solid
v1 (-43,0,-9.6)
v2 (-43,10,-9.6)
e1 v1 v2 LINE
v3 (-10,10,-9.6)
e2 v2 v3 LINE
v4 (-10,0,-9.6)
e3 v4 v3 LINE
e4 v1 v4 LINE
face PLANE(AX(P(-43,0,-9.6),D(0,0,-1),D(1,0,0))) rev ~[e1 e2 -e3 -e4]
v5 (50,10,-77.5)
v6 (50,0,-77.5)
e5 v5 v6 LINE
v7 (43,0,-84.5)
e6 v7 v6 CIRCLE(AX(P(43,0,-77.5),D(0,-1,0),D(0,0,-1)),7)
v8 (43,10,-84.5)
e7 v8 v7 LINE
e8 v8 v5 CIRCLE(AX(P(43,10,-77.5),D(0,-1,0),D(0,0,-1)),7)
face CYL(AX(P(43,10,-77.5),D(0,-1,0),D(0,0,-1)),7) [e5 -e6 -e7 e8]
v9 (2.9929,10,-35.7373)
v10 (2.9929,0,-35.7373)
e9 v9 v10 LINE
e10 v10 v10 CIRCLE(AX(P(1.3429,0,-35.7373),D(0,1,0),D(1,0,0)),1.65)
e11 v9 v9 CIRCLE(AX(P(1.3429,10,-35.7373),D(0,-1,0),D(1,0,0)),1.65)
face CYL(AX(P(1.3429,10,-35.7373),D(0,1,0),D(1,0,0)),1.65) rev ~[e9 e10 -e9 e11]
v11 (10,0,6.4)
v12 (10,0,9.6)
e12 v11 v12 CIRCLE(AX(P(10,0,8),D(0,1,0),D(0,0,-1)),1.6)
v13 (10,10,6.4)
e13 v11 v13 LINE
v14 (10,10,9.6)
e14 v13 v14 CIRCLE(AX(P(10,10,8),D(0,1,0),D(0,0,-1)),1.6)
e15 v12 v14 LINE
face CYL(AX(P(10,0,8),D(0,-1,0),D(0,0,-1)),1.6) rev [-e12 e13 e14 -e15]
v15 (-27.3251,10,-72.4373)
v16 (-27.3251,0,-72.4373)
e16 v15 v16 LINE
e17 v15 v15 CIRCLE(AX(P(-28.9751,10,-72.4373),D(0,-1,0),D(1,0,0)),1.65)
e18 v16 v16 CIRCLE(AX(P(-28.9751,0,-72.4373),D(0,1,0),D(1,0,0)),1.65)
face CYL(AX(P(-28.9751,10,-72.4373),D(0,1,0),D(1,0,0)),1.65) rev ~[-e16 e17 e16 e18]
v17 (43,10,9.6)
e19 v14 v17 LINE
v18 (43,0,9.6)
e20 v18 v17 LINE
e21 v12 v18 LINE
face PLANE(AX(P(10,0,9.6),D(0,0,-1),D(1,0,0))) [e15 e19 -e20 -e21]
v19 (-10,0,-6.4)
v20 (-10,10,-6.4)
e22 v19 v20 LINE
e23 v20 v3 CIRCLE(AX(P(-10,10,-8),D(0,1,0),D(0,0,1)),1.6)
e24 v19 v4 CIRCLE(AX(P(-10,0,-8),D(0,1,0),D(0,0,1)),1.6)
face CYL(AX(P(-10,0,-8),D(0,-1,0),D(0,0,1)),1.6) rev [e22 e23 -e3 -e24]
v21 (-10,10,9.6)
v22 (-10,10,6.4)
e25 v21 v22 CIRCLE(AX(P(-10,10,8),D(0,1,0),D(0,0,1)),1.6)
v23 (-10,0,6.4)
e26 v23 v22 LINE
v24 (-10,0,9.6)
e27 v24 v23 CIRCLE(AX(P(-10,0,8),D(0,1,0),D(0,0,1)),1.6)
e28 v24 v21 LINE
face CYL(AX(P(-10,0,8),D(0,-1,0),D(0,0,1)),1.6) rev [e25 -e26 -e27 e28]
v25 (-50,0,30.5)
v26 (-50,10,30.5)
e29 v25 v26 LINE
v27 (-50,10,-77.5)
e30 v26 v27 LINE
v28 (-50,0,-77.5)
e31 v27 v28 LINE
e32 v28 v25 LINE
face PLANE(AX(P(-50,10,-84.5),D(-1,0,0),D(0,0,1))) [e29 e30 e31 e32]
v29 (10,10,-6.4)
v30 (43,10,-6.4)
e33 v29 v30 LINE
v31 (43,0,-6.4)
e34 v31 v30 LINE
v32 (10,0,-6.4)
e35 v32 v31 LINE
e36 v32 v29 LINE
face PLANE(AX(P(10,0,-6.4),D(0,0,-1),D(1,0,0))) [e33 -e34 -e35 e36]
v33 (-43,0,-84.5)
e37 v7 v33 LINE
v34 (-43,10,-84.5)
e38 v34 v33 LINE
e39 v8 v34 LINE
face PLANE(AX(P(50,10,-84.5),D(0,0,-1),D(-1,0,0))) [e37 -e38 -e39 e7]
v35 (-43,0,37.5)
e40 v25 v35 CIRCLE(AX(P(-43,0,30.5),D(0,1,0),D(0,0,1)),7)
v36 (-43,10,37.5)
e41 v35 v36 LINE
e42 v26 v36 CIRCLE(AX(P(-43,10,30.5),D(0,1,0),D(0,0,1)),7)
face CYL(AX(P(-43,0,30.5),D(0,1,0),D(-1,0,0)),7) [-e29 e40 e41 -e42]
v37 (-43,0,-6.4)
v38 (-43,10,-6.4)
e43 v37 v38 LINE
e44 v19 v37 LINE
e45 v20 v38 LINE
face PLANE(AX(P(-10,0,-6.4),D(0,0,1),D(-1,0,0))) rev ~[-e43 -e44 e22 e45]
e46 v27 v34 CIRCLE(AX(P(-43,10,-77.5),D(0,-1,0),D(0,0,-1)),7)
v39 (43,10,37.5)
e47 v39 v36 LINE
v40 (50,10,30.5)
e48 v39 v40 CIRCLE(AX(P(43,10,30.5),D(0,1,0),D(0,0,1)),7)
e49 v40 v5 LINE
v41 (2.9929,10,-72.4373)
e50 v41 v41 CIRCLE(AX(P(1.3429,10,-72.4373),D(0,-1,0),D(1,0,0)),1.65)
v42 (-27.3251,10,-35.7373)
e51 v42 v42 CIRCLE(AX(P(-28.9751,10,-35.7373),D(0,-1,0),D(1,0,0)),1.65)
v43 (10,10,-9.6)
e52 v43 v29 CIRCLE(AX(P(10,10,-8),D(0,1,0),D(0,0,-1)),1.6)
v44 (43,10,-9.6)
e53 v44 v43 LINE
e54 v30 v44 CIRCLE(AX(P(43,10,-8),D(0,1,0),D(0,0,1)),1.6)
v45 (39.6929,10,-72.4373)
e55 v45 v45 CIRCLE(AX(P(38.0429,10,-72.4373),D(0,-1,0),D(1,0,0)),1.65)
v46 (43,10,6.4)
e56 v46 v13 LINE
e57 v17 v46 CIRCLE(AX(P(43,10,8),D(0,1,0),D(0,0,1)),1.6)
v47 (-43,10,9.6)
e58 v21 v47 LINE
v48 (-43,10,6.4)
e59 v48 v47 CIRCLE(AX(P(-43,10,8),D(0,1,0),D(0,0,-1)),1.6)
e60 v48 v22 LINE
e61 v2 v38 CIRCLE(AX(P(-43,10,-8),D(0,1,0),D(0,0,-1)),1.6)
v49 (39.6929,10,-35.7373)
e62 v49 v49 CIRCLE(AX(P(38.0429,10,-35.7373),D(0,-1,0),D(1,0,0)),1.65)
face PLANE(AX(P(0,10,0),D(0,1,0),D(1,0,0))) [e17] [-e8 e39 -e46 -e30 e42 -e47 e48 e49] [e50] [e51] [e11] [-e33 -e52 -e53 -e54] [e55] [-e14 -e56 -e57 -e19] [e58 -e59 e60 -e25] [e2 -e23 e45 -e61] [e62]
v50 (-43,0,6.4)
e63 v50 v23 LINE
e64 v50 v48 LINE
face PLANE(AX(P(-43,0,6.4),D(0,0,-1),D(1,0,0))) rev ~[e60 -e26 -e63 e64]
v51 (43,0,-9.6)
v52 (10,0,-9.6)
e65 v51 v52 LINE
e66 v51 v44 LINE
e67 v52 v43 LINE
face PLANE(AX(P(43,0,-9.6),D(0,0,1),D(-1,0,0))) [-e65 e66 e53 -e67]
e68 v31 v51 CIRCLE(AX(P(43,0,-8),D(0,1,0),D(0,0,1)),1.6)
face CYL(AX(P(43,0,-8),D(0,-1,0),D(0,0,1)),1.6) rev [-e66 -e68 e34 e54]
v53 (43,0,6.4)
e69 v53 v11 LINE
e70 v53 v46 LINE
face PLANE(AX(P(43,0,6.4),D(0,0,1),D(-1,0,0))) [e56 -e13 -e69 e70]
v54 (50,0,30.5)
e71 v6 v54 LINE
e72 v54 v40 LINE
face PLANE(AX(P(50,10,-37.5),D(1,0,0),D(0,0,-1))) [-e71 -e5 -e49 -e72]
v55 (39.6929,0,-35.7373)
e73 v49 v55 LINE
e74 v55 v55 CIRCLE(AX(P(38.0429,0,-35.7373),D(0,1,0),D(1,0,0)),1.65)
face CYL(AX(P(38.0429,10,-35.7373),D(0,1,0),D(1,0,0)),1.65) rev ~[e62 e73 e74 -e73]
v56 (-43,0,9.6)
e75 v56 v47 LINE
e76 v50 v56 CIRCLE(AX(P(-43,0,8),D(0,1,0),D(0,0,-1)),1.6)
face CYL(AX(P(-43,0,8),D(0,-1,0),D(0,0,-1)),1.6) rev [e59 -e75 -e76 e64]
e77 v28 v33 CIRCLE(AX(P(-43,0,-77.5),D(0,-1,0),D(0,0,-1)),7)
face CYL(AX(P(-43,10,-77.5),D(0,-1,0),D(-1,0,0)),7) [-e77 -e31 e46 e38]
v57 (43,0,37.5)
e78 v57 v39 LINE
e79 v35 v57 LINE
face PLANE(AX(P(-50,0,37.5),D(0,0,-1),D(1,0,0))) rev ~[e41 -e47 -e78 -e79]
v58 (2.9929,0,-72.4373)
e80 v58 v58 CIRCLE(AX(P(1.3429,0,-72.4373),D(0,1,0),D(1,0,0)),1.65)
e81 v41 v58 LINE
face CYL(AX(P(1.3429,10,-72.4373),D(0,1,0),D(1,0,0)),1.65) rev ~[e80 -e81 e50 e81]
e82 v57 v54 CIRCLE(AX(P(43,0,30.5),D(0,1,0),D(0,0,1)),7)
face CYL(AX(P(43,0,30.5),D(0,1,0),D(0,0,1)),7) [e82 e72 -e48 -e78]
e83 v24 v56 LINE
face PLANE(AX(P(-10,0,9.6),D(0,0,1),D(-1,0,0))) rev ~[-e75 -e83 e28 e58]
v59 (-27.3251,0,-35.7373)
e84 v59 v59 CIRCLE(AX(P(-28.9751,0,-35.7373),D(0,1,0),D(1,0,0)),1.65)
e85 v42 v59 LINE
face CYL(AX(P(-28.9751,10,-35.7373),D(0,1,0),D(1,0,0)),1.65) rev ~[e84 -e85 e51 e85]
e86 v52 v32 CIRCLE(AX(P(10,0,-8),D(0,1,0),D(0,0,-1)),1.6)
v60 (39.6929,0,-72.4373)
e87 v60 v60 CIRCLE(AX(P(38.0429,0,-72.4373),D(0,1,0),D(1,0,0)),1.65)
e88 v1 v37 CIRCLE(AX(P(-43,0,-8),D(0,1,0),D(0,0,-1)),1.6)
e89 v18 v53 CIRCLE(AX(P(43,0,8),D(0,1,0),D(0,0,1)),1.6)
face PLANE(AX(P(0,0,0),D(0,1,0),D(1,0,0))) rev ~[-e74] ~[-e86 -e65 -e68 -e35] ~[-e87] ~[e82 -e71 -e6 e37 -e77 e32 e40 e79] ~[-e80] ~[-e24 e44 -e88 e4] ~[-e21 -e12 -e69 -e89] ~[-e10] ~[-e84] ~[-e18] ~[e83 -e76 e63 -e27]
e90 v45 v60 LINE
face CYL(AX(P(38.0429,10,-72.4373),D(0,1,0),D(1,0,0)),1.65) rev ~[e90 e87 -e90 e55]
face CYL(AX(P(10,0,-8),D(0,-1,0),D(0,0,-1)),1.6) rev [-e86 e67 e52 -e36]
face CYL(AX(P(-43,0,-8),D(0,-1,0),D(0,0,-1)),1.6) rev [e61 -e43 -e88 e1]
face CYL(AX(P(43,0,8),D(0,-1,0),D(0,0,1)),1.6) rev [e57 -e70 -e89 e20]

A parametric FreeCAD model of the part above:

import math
import FreeCAD as App
import Part
import Sketcher

V = App.Vector


def edges_at(feature, points):
    """Names of the edges that pass closest to the given points."""
    edges = feature.Shape.Edges
    near = lambda p: min(range(len(edges)), key=lambda i: edges[i].distToShape(Part.Vertex(*p))[0])
    return sorted({f"Edge{near(p) + 1}" for p in points})

doc = App.newDocument("Part")
body = doc.addObject("PartDesign::Body", "Body")

sketch1 = body.newObject("Sketcher::SketchObject", "Sketch")
sketch1.AttachmentSupport = (doc.getObject("XZ_Plane"), [""])
sketch1.MapMode = "FlatFace"
sketch1.addGeometry(Part.LineSegment(V(-50, -37.5, 0), V(-50, 37.5, 0)), False)
sketch1.addGeometry(Part.LineSegment(V(-50, 37.5, 0), V(50, 37.5, 0)), False)
sketch1.addGeometry(Part.LineSegment(V(50, 37.5, 0), V(50, -37.5, 0)), False)
sketch1.addGeometry(Part.LineSegment(V(50, -37.5, 0), V(-50, -37.5, 0)), False)
sketch1.addGeometry(Part.ArcOfCircle(Part.Circle(V(-10, -8, 0), V(0, 0, 1), 1.6), math.radians(-90), math.radians(90)), False)
sketch1.addGeometry(Part.LineSegment(V(-10, -6.4, 0), V(-43, -6.4, 0)), False)
sketch1.addGeometry(Part.ArcOfCircle(Part.Circle(V(-43, -8, 0), V(0, 0, 1), 1.6), math.radians(90), math.radians(270)), False)
sketch1.addGeometry(Part.LineSegment(V(-43, -9.6, 0), V(-10, -9.6, 0)), False)
sketch1.addGeometry(Part.LineSegment(V(-43, 6.4, 0), V(-10, 6.4, 0)), False)
sketch1.addGeometry(Part.ArcOfCircle(Part.Circle(V(-10, 8, 0), V(0, 0, 1), 1.6), math.radians(-90), math.radians(90)), False)
sketch1.addGeometry(Part.LineSegment(V(-10, 9.6, 0), V(-43, 9.6, 0)), False)
sketch1.addGeometry(Part.ArcOfCircle(Part.Circle(V(-43, 8, 0), V(0, 0, 1), 1.6), math.radians(90), math.radians(270)), False)
sketch1.addGeometry(Part.LineSegment(V(43, -6.4, 0), V(10, -6.4, 0)), False)
sketch1.addGeometry(Part.ArcOfCircle(Part.Circle(V(10, -8, 0), V(0, 0, 1), 1.6), math.radians(90), math.radians(270)), False)
sketch1.addGeometry(Part.LineSegment(V(10, -9.6, 0), V(43, -9.6, 0)), False)
sketch1.addGeometry(Part.ArcOfCircle(Part.Circle(V(43, -8, 0), V(0, 0, 1), 1.6), math.radians(-90), math.radians(90)), False)
sketch1.addGeometry(Part.ArcOfCircle(Part.Circle(V(43, 8, 0), V(0, 0, 1), 1.6), math.radians(-90), math.radians(90)), False)
sketch1.addGeometry(Part.LineSegment(V(43, 9.6, 0), V(10, 9.6, 0)), False)
sketch1.addGeometry(Part.ArcOfCircle(Part.Circle(V(10, 8, 0), V(0, 0, 1), 1.6), math.radians(90), math.radians(270)), False)
sketch1.addGeometry(Part.LineSegment(V(10, 6.4, 0), V(43, 6.4, 0)), False)
sketch1.addConstraint(Sketcher.Constraint("Coincident", 0, 2, 1, 1))
sketch1.addConstraint(Sketcher.Constraint("Coincident", 1, 2, 2, 1))
sketch1.addConstraint(Sketcher.Constraint("Coincident", 2, 2, 3, 1))
sketch1.addConstraint(Sketcher.Constraint("Coincident", 3, 2, 0, 1))
sketch1.addConstraint(Sketcher.Constraint("Tangent", 4, 2, 5, 1))
sketch1.addConstraint(Sketcher.Constraint("Tangent", 5, 2, 6, 1))
sketch1.addConstraint(Sketcher.Constraint("Tangent", 6, 2, 7, 1))
sketch1.addConstraint(Sketcher.Constraint("Tangent", 7, 2, 4, 1))
sketch1.addConstraint(Sketcher.Constraint("Tangent", 8, 2, 9, 1))
sketch1.addConstraint(Sketcher.Constraint("Tangent", 9, 2, 10, 1))
sketch1.addConstraint(Sketcher.Constraint("Tangent", 10, 2, 11, 1))
sketch1.addConstraint(Sketcher.Constraint("Tangent", 11, 2, 8, 1))
sketch1.addConstraint(Sketcher.Constraint("Tangent", 12, 2, 13, 1))
sketch1.addConstraint(Sketcher.Constraint("Tangent", 13, 2, 14, 1))
sketch1.addConstraint(Sketcher.Constraint("Tangent", 14, 2, 15, 1))
sketch1.addConstraint(Sketcher.Constraint("Tangent", 15, 2, 12, 1))
sketch1.addConstraint(Sketcher.Constraint("Tangent", 16, 2, 17, 1))
sketch1.addConstraint(Sketcher.Constraint("Tangent", 17, 2, 18, 1))
sketch1.addConstraint(Sketcher.Constraint("Tangent", 18, 2, 19, 1))
sketch1.addConstraint(Sketcher.Constraint("Tangent", 19, 2, 16, 1))
sketch1.addConstraint(Sketcher.Constraint("Vertical", 0))
sketch1.addConstraint(Sketcher.Constraint("Horizontal", 1))
sketch1.addConstraint(Sketcher.Constraint("Vertical", 2))
sketch1.addConstraint(Sketcher.Constraint("Horizontal", 3))
sketch1.addConstraint(Sketcher.Constraint("Horizontal", 5))
sketch1.addConstraint(Sketcher.Constraint("Horizontal", 7))
sketch1.addConstraint(Sketcher.Constraint("Horizontal", 8))
sketch1.addConstraint(Sketcher.Constraint("Horizontal", 10))
sketch1.addConstraint(Sketcher.Constraint("Horizontal", 12))
sketch1.addConstraint(Sketcher.Constraint("Horizontal", 14))
sketch1.addConstraint(Sketcher.Constraint("Horizontal", 17))
sketch1.addConstraint(Sketcher.Constraint("Horizontal", 19))
sketch1.addConstraint(Sketcher.Constraint("Equal", 6, 9))
sketch1.addConstraint(Sketcher.Constraint("Equal", 11, 13))
sketch1.addConstraint(Sketcher.Constraint("Equal", 15, 16))
sketch1.addConstraint(Sketcher.Constraint("Symmetric", 9, 3, 13, 3, -1, 1))
sketch1.addConstraint(Sketcher.Constraint("Symmetric", 6, 3, 16, 3, -1, 1))
sketch1.addConstraint(Sketcher.Constraint("Symmetric", 0, 2, 2, 2, -1, 1))
sketch1.addConstraint(Sketcher.Constraint("Symmetric", 4, 3, 13, 3, -2))
sketch1.addConstraint(Sketcher.Constraint("Vertical", 6, 3, 11, 3))
sketch1.addConstraint(Sketcher.Constraint("Vertical", 15, 3, 16, 3))
sketch1.addConstraint(Sketcher.Constraint("Vertical", 13, 3, 18, 3))
sketch1.addConstraint(Sketcher.Constraint("Radius", 4, 1.6))
sketch1.addConstraint(Sketcher.Constraint("DistanceX", 1, 1, 1, 2, 100.0))
sketch1.addConstraint(Sketcher.Constraint("DistanceX", 5, 2, 5, 1, 33.0))
sketch1.addConstraint(Sketcher.Constraint("DistanceY", 0, 1, 0, 2, 75.0))
sketch1.addConstraint(Sketcher.Constraint("DistanceX", 4, 3, -1, 1, 10.0))
sketch1.addConstraint(Sketcher.Constraint("DistanceY", 4, 3, -1, 1, 8.0))
pad1 = body.newObject("PartDesign::Pad", "Pad")
pad1.Profile = sketch1
pad1.Length = 10
pad1.Reversed = True

sketch2 = body.newObject("Sketcher::SketchObject", "Sketch001")
sketch2.AttachmentSupport = (doc.getObject("XZ_Plane"), [""])
sketch2.MapMode = "FlatFace"
sketch2.AttachmentOffset = App.Placement(V(0, 0, -10), App.Rotation())
sketch2.addGeometry(Part.LineSegment(V(-50, -38, 0), V(50, -38, 0)), False)
sketch2.addGeometry(Part.LineSegment(V(50, -38, 0), V(50, -84, 0)), False)
sketch2.addGeometry(Part.LineSegment(V(50, -84, 0), V(-50, -84, 0)), False)
sketch2.addGeometry(Part.LineSegment(V(-50, -84, 0), V(-50, -38, 0)), False)
sketch2.addConstraint(Sketcher.Constraint("Coincident", 0, 2, 1, 1))
sketch2.addConstraint(Sketcher.Constraint("Coincident", 1, 2, 2, 1))
sketch2.addConstraint(Sketcher.Constraint("Coincident", 2, 2, 3, 1))
sketch2.addConstraint(Sketcher.Constraint("Coincident", 3, 2, 0, 1))
sketch2.addConstraint(Sketcher.Constraint("Horizontal", 0))
sketch2.addConstraint(Sketcher.Constraint("Vertical", 1))
sketch2.addConstraint(Sketcher.Constraint("Horizontal", 2))
sketch2.addConstraint(Sketcher.Constraint("Vertical", 3))
sketch2.addConstraint(Sketcher.Constraint("DistanceY", 1, 2, 1, 1, 47.0))
sketch2.addConstraint(Sketcher.Constraint("DistanceX", 0, 1, 0, 2, 100.0))
sketch2.addConstraint(Sketcher.Constraint("DistanceX", -1, 1, 0, 2, 50.0))
sketch2.addConstraint(Sketcher.Constraint("DistanceY", 0, 2, -1, 1, 37.5))
pad2 = body.newObject("PartDesign::Pad", "Pad001")
pad2.Profile = sketch2
pad2.Length = 10

sketch3 = body.newObject("Sketcher::SketchObject", "Sketch002")
sketch3.AttachmentSupport = (doc.getObject("XZ_Plane"), [""])
sketch3.MapMode = "FlatFace"
sketch3.AttachmentOffset = App.Placement(V(0, 0, -10), App.Rotation())
sketch3.addGeometry(Part.Circle(V(1.3, -35.7, 0), V(0, 0, 1), 1.6), False)
sketch3.addGeometry(Part.Circle(V(38, -35.7, 0), V(0, 0, 1), 1.6), False)
sketch3.addGeometry(Part.Circle(V(1.3, -72.4, 0), V(0, 0, 1), 1.6), False)
sketch3.addGeometry(Part.Circle(V(38, -72.4, 0), V(0, 0, 1), 1.6), False)
sketch3.addGeometry(Part.Circle(V(-29, -72.4, 0), V(0, 0, 1), 1.6), False)
sketch3.addGeometry(Part.Circle(V(-29, -35.7, 0), V(0, 0, 1), 1.6), False)
sketch3.addConstraint(Sketcher.Constraint("Equal", 0, 1))
sketch3.addConstraint(Sketcher.Constraint("Equal", 1, 2))
sketch3.addConstraint(Sketcher.Constraint("Equal", 2, 3))
sketch3.addConstraint(Sketcher.Constraint("Equal", 3, 4))
sketch3.addConstraint(Sketcher.Constraint("Equal", 4, 5))
sketch3.addConstraint(Sketcher.Constraint("Horizontal", 0, 3, 1, 3))
sketch3.addConstraint(Sketcher.Constraint("Horizontal", 2, 3, 3, 3))
sketch3.addConstraint(Sketcher.Constraint("Horizontal", 3, 3, 4, 3))
sketch3.addConstraint(Sketcher.Constraint("Horizontal", 1, 3, 5, 3))
sketch3.addConstraint(Sketcher.Constraint("Vertical", 0, 3, 2, 3))
sketch3.addConstraint(Sketcher.Constraint("Vertical", 1, 3, 3, 3))
sketch3.addConstraint(Sketcher.Constraint("Vertical", 4, 3, 5, 3))
sketch3.addConstraint(Sketcher.Constraint("Diameter", 0, 3.3))
sketch3.addConstraint(Sketcher.Constraint("DistanceX", 0, 3, 1, 3, 36.7))
sketch3.addConstraint(Sketcher.Constraint("DistanceY", 2, 3, 0, 3, 36.7))
sketch3.addConstraint(Sketcher.Constraint("DistanceX", -1, 1, 0, 3, 1.343))
sketch3.addConstraint(Sketcher.Constraint("DistanceX", 4, 3, -1, 1, 28.975))
sketch3.addConstraint(Sketcher.Constraint("DistanceY", 0, 3, -1, 1, 35.7373))
pocket1 = body.newObject("PartDesign::Pocket", "Pocket")
pocket1.Profile = sketch3
pocket1.Length = 10
pocket1.Reversed = True
doc.recompute()

fillet = body.newObject("PartDesign::Fillet", "Fillet")
fillet.Base = (pocket1, edges_at(pocket1, [
    (-50, 5, 37.5),
    (50, 5, 37.5),
    (50, 5, -84.5),
    (-50, 5, -84.5),
]))
fillet.Radius = 7

doc.recompute()
